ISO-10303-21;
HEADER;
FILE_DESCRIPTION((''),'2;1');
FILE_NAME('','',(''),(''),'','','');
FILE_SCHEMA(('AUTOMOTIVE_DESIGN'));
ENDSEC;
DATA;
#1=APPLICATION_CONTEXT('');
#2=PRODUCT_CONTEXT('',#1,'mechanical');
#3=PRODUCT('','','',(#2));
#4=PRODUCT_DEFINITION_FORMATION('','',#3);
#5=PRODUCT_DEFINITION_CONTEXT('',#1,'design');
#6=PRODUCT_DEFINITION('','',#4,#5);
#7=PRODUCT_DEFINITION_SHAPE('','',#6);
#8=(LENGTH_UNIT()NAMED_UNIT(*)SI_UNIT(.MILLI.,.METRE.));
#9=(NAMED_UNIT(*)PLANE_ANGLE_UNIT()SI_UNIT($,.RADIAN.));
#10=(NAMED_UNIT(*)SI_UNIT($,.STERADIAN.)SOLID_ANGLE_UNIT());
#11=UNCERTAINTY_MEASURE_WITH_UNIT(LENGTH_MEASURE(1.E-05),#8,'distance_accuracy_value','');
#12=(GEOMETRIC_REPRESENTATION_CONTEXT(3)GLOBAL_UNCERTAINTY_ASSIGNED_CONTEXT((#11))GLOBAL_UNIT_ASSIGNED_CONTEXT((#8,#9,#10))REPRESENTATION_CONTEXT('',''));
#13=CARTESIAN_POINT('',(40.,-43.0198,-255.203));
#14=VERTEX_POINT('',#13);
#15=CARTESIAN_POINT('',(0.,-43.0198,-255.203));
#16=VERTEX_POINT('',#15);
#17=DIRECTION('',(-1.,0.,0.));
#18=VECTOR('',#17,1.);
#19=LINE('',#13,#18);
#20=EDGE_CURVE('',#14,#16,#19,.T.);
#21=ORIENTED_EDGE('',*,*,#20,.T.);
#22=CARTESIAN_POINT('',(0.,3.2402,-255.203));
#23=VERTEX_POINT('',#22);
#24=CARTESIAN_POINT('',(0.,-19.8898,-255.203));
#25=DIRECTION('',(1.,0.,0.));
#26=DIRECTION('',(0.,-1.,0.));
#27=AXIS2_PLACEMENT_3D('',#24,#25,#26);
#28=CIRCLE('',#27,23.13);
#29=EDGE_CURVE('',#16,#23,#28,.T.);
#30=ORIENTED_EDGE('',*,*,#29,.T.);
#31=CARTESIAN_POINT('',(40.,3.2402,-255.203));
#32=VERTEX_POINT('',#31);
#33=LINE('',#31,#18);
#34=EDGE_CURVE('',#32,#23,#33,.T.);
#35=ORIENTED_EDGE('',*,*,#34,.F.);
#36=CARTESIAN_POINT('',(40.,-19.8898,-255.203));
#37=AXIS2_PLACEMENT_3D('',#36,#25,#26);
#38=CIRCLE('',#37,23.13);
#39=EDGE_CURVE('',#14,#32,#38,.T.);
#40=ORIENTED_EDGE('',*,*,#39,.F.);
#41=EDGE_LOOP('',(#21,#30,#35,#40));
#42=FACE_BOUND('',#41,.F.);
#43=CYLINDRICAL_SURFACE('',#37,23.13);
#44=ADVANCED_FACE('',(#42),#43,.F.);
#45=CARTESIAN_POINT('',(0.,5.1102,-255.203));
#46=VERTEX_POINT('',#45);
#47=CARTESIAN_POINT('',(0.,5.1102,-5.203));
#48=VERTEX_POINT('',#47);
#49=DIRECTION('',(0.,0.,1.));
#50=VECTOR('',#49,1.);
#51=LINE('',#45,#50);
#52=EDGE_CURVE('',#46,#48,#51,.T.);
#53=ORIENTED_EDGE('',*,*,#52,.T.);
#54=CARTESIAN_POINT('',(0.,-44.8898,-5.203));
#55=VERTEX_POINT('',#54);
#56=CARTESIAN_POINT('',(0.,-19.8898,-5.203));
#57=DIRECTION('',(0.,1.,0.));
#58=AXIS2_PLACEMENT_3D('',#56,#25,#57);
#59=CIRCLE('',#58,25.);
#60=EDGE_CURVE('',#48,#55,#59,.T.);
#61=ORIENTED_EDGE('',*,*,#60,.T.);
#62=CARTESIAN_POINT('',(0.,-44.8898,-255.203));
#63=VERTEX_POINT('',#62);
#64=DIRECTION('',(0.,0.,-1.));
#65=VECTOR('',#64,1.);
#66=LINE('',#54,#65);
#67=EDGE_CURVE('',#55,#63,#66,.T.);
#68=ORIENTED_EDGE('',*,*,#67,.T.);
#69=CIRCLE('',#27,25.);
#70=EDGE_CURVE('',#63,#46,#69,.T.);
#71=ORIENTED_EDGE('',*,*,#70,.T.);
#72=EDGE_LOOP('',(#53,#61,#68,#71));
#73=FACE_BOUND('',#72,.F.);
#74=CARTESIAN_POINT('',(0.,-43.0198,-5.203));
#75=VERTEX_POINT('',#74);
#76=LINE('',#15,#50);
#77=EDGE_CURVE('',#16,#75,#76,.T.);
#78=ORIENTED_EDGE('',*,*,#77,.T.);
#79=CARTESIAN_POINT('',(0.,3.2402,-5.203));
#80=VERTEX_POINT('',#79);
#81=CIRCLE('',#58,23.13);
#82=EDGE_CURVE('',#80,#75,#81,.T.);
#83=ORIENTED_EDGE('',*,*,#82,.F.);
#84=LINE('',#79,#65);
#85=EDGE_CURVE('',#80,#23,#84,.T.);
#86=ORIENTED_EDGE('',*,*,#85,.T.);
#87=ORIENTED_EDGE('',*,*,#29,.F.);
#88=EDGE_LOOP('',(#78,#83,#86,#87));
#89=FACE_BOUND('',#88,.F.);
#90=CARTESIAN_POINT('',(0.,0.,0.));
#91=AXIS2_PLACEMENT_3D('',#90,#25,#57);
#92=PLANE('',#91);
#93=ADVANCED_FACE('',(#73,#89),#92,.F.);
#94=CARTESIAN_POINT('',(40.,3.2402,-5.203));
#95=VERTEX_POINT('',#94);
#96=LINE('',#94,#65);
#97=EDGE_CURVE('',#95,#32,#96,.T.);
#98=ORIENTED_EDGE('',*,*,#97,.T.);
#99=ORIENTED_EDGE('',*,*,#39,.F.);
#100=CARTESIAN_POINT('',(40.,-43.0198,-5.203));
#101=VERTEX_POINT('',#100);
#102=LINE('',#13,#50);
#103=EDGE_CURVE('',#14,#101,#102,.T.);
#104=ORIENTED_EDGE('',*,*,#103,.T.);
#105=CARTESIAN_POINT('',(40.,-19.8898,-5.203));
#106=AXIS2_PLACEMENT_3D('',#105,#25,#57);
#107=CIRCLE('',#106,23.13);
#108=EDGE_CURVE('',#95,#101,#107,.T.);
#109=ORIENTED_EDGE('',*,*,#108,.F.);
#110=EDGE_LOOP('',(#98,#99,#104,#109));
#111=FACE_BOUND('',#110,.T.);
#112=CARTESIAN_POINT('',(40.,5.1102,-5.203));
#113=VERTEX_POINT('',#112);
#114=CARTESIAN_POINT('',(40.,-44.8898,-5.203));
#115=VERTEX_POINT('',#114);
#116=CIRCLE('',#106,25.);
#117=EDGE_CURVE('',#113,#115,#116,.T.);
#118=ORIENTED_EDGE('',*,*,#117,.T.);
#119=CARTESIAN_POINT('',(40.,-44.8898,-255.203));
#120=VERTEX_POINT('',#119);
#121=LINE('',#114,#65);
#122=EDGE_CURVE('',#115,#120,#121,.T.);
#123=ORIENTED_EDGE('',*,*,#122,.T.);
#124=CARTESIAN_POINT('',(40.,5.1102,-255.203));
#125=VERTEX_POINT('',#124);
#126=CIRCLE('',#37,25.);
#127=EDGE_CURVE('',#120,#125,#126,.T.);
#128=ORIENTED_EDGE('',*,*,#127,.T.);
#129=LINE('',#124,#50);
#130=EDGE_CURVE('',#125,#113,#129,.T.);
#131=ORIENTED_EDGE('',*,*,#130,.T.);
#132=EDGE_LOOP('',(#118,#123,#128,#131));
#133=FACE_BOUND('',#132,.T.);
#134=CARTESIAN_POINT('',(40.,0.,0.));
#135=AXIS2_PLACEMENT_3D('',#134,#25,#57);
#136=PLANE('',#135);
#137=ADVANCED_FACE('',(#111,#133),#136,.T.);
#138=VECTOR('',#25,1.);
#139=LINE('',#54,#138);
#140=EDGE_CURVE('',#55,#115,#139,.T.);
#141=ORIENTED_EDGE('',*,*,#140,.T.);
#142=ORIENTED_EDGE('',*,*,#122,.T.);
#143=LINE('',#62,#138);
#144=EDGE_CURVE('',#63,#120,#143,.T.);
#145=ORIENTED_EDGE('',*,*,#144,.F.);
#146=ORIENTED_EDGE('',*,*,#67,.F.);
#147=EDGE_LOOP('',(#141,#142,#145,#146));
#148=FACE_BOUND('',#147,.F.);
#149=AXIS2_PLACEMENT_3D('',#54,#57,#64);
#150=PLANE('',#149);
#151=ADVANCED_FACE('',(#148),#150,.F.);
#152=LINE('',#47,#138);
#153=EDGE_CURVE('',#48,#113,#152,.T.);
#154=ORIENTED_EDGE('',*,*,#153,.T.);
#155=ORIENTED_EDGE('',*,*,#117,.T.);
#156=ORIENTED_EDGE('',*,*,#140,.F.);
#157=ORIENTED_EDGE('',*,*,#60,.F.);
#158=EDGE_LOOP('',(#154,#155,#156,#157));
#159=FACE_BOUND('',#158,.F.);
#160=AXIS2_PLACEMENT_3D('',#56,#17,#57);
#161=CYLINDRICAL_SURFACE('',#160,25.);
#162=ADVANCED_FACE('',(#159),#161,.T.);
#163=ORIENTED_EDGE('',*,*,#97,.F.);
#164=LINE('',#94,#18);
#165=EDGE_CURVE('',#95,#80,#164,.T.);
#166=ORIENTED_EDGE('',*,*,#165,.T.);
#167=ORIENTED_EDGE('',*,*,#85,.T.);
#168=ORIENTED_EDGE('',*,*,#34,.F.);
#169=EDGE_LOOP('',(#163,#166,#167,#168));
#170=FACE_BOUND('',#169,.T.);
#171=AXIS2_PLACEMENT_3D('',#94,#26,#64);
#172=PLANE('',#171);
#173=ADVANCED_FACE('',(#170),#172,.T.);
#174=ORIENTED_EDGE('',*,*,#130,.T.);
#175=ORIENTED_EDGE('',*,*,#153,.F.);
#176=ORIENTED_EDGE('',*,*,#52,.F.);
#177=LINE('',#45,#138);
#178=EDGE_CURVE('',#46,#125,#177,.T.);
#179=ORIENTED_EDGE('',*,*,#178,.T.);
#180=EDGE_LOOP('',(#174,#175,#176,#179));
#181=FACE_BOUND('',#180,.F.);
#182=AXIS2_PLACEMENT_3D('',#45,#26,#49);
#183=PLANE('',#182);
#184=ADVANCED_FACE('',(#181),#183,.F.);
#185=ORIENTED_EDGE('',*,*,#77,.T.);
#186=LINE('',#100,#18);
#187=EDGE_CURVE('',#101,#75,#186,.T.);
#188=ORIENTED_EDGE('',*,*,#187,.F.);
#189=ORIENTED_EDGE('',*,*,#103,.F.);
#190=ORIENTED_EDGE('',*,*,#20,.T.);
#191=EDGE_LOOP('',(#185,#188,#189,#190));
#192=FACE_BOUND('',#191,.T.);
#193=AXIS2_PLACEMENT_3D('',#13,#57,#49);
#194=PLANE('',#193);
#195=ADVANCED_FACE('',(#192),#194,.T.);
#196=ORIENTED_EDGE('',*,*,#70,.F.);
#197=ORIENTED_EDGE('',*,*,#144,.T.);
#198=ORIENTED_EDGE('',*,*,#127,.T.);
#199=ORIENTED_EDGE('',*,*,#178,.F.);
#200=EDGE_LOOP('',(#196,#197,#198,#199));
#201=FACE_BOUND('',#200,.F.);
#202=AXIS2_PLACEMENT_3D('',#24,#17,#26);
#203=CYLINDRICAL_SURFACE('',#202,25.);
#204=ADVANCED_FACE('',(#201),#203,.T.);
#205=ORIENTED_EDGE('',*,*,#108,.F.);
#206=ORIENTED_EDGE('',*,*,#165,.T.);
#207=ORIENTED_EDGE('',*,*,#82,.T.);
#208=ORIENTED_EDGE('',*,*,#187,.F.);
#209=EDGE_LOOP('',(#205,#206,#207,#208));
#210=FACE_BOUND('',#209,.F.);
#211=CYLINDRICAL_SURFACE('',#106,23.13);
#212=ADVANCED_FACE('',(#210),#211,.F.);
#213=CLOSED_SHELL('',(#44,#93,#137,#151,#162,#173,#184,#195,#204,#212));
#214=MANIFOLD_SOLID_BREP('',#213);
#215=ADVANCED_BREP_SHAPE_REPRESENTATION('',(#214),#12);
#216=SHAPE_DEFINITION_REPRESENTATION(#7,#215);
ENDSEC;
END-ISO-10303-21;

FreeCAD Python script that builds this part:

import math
import FreeCAD as App
import Part
import Sketcher

V = App.Vector
Q = App.Units.Quantity

doc = App.newDocument("Part")
body = doc.addObject("PartDesign::Body", "Body")

sketch1 = body.newObject("Sketcher::SketchObject", "Sketch")
sketch1.AttachmentSupport = (doc.getObject("YZ_Plane"), [""])
sketch1.MapMode = "FlatFace"
sketch1.addGeometry([
    Part.ArcOfCircle(Part.Circle(V(-19.8898, -5.203, 0), V(0, 0, 1), 25), math.radians(0), math.radians(180)),
    Part.LineSegment(V(-44.8898, -5.203, 0), V(-44.8898, -255.203, 0)),
    Part.ArcOfCircle(Part.Circle(V(-19.8898, -255.203, 0), V(0, 0, 1), 25), math.radians(180), math.radians(360)),
    Part.LineSegment(V(5.1102, -255.203, 0), V(5.1102, -5.203, 0)),
], False)
sketch1.addConstraint([
    Sketcher.Constraint("Tangent", 0, 2, 1, 1),
    Sketcher.Constraint("Tangent", 1, 2, 2, 1),
    Sketcher.Constraint("Tangent", 2, 2, 3, 1),
    Sketcher.Constraint("Tangent", 3, 2, 0, 1),
    Sketcher.Constraint("Vertical", 1),
    Sketcher.Constraint("Vertical", 3),
    Sketcher.Constraint("Radius", 0, Q("25 mm")),
    Sketcher.Constraint("DistanceY", 1, 2, 1, 1, Q("250 mm")),
    Sketcher.Constraint("DistanceY", 0, 3, -1, 1, Q("5.203 mm")),
    Sketcher.Constraint("DistanceX", 0, 3, -1, 1, Q("19.8898 mm")),
])
pad1 = body.newObject("PartDesign::Pad", "Pad")
pad1.Profile = sketch1
pad1.Length = 40

sketch2 = body.newObject("Sketcher::SketchObject", "Sketch001")
sketch2.AttachmentSupport = (doc.getObject("YZ_Plane"), [""])
sketch2.MapMode = "FlatFace"
sketch2.AttachmentOffset = App.Placement(V(0, 0, 40), App.Rotation())
sketch2.addGeometry([
    Part.LineSegment(V(3.2402, -255.203, 0), V(3.2402, -5.203, 0)),
    Part.ArcOfCircle(Part.Circle(V(-19.8898, -5.203, 0), V(0, 0, 1), 23.13), math.radians(0), math.radians(180)),
    Part.LineSegment(V(-43.0198, -5.203, 0), V(-43.0198, -255.203, 0)),
    Part.ArcOfCircle(Part.Circle(V(-19.8898, -255.203, 0), V(0, 0, 1), 23.13), math.radians(180), math.radians(360)),
], False)
sketch2.addConstraint([
    Sketcher.Constraint("Tangent", 0, 2, 1, 1),
    Sketcher.Constraint("Tangent", 1, 2, 2, 1),
    Sketcher.Constraint("Tangent", 2, 2, 3, 1),
    Sketcher.Constraint("Tangent", 3, 2, 0, 1),
    Sketcher.Constraint("Vertical", 0),
    Sketcher.Constraint("Vertical", 2),
    Sketcher.Constraint("DistanceY", 0, 1, 0, 2, Q("250 mm")),
    Sketcher.Constraint("Radius", 1, Q("23.13 mm")),
    Sketcher.Constraint("DistanceY", 1, 3, -1, 1, Q("5.203 mm")),
    Sketcher.Constraint("DistanceX", 1, 3, -1, 1, Q("19.8898 mm")),
])
pocket1 = body.newObject("PartDesign::Pocket", "Pocket")
pocket1.Profile = sketch2
pocket1.Length = 40

doc.recompute()
